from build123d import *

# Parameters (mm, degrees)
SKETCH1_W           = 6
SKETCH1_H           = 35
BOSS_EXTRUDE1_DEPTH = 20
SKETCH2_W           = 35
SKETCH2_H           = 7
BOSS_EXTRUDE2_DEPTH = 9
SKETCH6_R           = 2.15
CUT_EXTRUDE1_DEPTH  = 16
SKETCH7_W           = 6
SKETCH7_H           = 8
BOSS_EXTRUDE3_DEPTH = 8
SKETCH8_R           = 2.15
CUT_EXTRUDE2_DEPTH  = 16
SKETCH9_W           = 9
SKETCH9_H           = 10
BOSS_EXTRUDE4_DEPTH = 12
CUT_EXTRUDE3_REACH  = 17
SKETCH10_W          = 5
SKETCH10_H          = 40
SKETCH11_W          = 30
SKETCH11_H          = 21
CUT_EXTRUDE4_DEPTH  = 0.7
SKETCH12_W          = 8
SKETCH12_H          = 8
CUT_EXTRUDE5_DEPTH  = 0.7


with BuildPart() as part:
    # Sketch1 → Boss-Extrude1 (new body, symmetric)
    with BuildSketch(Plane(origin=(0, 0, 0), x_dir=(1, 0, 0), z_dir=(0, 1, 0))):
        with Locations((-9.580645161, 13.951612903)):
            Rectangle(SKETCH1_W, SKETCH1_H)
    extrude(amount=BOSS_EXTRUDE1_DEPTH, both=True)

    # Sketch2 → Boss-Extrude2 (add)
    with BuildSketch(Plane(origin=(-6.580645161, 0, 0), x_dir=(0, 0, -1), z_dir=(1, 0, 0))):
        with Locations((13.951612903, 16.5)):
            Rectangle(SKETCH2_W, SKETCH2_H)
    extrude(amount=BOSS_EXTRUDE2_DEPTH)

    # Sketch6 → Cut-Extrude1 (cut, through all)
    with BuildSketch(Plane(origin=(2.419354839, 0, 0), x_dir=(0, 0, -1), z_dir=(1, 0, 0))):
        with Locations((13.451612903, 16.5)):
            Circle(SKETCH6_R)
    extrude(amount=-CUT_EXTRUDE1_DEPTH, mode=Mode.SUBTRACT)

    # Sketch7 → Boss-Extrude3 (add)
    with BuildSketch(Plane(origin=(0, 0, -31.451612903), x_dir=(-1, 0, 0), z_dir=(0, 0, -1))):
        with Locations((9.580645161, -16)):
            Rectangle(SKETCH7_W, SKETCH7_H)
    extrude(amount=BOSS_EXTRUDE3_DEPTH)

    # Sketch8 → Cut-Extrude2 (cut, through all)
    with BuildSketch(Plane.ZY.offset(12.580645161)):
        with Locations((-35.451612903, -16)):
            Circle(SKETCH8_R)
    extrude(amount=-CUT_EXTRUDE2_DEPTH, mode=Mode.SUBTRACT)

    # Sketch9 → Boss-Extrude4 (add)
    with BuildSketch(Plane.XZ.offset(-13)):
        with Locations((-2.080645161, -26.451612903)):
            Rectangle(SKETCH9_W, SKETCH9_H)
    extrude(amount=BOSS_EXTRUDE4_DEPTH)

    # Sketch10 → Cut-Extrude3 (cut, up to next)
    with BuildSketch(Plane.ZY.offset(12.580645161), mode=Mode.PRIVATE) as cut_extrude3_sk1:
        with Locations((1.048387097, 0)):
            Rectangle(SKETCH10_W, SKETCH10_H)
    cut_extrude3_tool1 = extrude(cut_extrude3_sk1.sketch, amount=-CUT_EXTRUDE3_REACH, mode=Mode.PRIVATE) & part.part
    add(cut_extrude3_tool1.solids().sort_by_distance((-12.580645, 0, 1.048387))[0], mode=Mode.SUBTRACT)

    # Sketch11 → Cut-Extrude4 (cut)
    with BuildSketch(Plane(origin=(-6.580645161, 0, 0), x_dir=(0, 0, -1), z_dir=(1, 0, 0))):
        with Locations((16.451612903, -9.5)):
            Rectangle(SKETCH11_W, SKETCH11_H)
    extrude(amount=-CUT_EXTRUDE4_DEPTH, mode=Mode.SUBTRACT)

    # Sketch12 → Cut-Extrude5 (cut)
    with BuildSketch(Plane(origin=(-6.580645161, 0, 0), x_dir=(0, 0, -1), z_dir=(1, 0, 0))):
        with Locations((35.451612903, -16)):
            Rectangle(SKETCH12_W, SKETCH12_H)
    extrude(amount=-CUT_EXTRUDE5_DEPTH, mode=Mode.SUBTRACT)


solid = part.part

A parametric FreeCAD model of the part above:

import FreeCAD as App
import Part
import Sketcher

V = App.Vector
Q = App.Units.Quantity

doc = App.newDocument("Part")
body = doc.addObject("PartDesign::Body", "Body")

# Sketch on XZ plane
sketch1 = body.newObject("Sketcher::SketchObject", "Sketch")
sketch1.AttachmentSupport = (doc.getObject("XZ_Plane"), [""])
sketch1.MapMode = "FlatFace"
sketch1.addGeometry([
    Part.LineSegment(V(-13, -31, 0), V(-13, 4, 0)),
    Part.LineSegment(V(-13, 4, 0), V(-7, 4, 0)),
    Part.LineSegment(V(-7, 4, 0), V(-7, -31, 0)),
    Part.LineSegment(V(-7, -31, 0), V(-13, -31, 0)),
], False)
sketch1.addConstraint([
    Sketcher.Constraint("Coincident", 0, 2, 1, 1),
    Sketcher.Constraint("Coincident", 1, 2, 2, 1),
    Sketcher.Constraint("Coincident", 2, 2, 3, 1),
    Sketcher.Constraint("Coincident", 3, 2, 0, 1),
    Sketcher.Constraint("Vertical", 0),
    Sketcher.Constraint("Horizontal", 1),
    Sketcher.Constraint("Vertical", 2),
    Sketcher.Constraint("Horizontal", 3),
    Sketcher.Constraint("DistanceX", 1, 1, 1, 2, Q("6 mm")),
    Sketcher.Constraint("DistanceY", 0, 1, 0, 2, Q("35 mm")),
    Sketcher.Constraint("DistanceX", 0, 2, -1, 1, Q("12.580645 mm")),
    Sketcher.Constraint("DistanceY", -1, 1, 0, 2, Q("3.548387 mm")),
])
pad1 = body.newObject("PartDesign::Pad", "Pad")
pad1.Profile = sketch1
pad1.Length = 40
pad1.Midplane = True

# Sketch on YZ plane
sketch2 = body.newObject("Sketcher::SketchObject", "Sketch001")
sketch2.AttachmentSupport = (doc.getObject("YZ_Plane"), [""])
sketch2.MapMode = "FlatFace"
sketch2.AttachmentOffset = App.Placement(V(0, 0, -6.580645), App.Rotation())
sketch2.addGeometry([
    Part.LineSegment(V(20, 4, 0), V(13, 4, 0)),
    Part.LineSegment(V(13, 4, 0), V(13, -31, 0)),
    Part.LineSegment(V(13, -31, 0), V(20, -31, 0)),
    Part.LineSegment(V(20, -31, 0), V(20, 4, 0)),
], False)
sketch2.addConstraint([
    Sketcher.Constraint("Coincident", 0, 2, 1, 1),
    Sketcher.Constraint("Coincident", 1, 2, 2, 1),
    Sketcher.Constraint("Coincident", 2, 2, 3, 1),
    Sketcher.Constraint("Coincident", 3, 2, 0, 1),
    Sketcher.Constraint("Horizontal", 0),
    Sketcher.Constraint("Vertical", 1),
    Sketcher.Constraint("Horizontal", 2),
    Sketcher.Constraint("Vertical", 3),
    Sketcher.Constraint("DistanceX", 0, 2, 0, 1, Q("7 mm")),
    Sketcher.Constraint("DistanceY", 1, 2, 1, 1, Q("35 mm")),
    Sketcher.Constraint("DistanceX", -1, 1, 0, 2, Q("13 mm")),
    Sketcher.Constraint("DistanceY", -1, 1, 0, 2, Q("3.548387 mm")),
])
pad2 = body.newObject("PartDesign::Pad", "Pad001")
pad2.Profile = sketch2
pad2.Length = 9

# Sketch on YZ plane
sketch3 = body.newObject("Sketcher::SketchObject", "Sketch002")
sketch3.AttachmentSupport = (doc.getObject("YZ_Plane"), [""])
sketch3.MapMode = "FlatFace"
sketch3.AttachmentOffset = App.Placement(V(0, 0, 2.419355), App.Rotation())
sketch3.addGeometry(Part.Circle(V(16.5, -13.5, 0), V(0, 0, 1), 2.1), False)
sketch3.addConstraint([
    Sketcher.Constraint("Diameter", 0, Q("4.3 mm")),
    Sketcher.Constraint("DistanceX", -1, 1, 0, 3, Q("16.5 mm")),
    Sketcher.Constraint("DistanceY", 0, 3, -1, 1, Q("13.451613 mm")),
])
pocket1 = body.newObject("PartDesign::Pocket", "Pocket")
pocket1.Profile = sketch3
pocket1.Type = "ThroughAll"

# Sketch on XY plane
sketch4 = body.newObject("Sketcher::SketchObject", "Sketch003")
sketch4.AttachmentSupport = (doc.getObject("XY_Plane"), [""])
sketch4.MapMode = "FlatFace"
sketch4.AttachmentOffset = App.Placement(V(0, 0, -31.451613), App.Rotation())
sketch4.addGeometry([
    Part.LineSegment(V(-7, -12, 0), V(-7, -20, 0)),
    Part.LineSegment(V(-7, -20, 0), V(-13, -20, 0)),
    Part.LineSegment(V(-13, -20, 0), V(-13, -12, 0)),
    Part.LineSegment(V(-13, -12, 0), V(-7, -12, 0)),
], False)
sketch4.addConstraint([
    Sketcher.Constraint("Coincident", 0, 2, 1, 1),
    Sketcher.Constraint("Coincident", 1, 2, 2, 1),
    Sketcher.Constraint("Coincident", 2, 2, 3, 1),
    Sketcher.Constraint("Coincident", 3, 2, 0, 1),
    Sketcher.Constraint("Vertical", 0),
    Sketcher.Constraint("Horizontal", 1),
    Sketcher.Constraint("Vertical", 2),
    Sketcher.Constraint("Horizontal", 3),
    Sketcher.Constraint("DistanceX", 1, 2, 1, 1, Q("6 mm")),
    Sketcher.Constraint("DistanceY", 0, 2, 0, 1, Q("8 mm")),
    Sketcher.Constraint("DistanceY", 0, 2, -1, 1, Q("20 mm")),
    Sketcher.Constraint("DistanceX", 0, 2, -1, 1, Q("6.580645 mm")),
])
pad3 = body.newObject("PartDesign::Pad", "Pad002")
pad3.Profile = sketch4
pad3.Length = 8
pad3.Reversed = True

# Sketch on YZ plane
sketch5 = body.newObject("Sketcher::SketchObject", "Sketch004")
sketch5.AttachmentSupport = (doc.getObject("YZ_Plane"), [""])
sketch5.MapMode = "FlatFace"
sketch5.AttachmentOffset = App.Placement(V(0, 0, -12.580645), App.Rotation())
sketch5.addGeometry(Part.Circle(V(-16, -35.5, 0), V(0, 0, 1), 2.1), False)
sketch5.addConstraint([
    Sketcher.Constraint("Diameter", 0, Q("4.3 mm")),
    Sketcher.Constraint("DistanceX", 0, 3, -1, 1, Q("16 mm")),
    Sketcher.Constraint("DistanceY", 0, 3, -1, 1, Q("35.451613 mm")),
])
pocket2 = body.newObject("PartDesign::Pocket", "Pocket001")
pocket2.Profile = sketch5
pocket2.Type = "ThroughAll"
pocket2.Reversed = True

# Sketch on XZ plane
sketch6 = body.newObject("Sketcher::SketchObject", "Sketch005")
sketch6.AttachmentSupport = (doc.getObject("XZ_Plane"), [""])
sketch6.MapMode = "FlatFace"
sketch6.AttachmentOffset = App.Placement(V(0, 0, -13), App.Rotation())
sketch6.addGeometry([
    Part.LineSegment(V(-7, -21, 0), V(-7, -31, 0)),
    Part.LineSegment(V(-7, -31, 0), V(2, -31, 0)),
    Part.LineSegment(V(2, -31, 0), V(2, -21, 0)),
    Part.LineSegment(V(2, -21, 0), V(-7, -21, 0)),
], False)
sketch6.addConstraint([
    Sketcher.Constraint("Coincident", 0, 2, 1, 1),
    Sketcher.Constraint("Coincident", 1, 2, 2, 1),
    Sketcher.Constraint("Coincident", 2, 2, 3, 1),
    Sketcher.Constraint("Coincident", 3, 2, 0, 1),
    Sketcher.Constraint("Vertical", 0),
    Sketcher.Constraint("Horizontal", 1),
    Sketcher.Constraint("Vertical", 2),
    Sketcher.Constraint("Horizontal", 3),
    Sketcher.Constraint("DistanceX", 1, 1, 1, 2, Q("9 mm")),
    Sketcher.Constraint("DistanceY", 0, 2, 0, 1, Q("10 mm")),
    Sketcher.Constraint("DistanceX", 0, 2, -1, 1, Q("6.580645 mm")),
    Sketcher.Constraint("DistanceY", 0, 2, -1, 1, Q("31.451613 mm")),
])
pad4 = body.newObject("PartDesign::Pad", "Pad003")
pad4.Profile = sketch6
pad4.Length = 12

# Sketch on YZ plane
sketch7 = body.newObject("Sketcher::SketchObject", "Sketch006")
sketch7.AttachmentSupport = (doc.getObject("YZ_Plane"), [""])
sketch7.MapMode = "FlatFace"
sketch7.AttachmentOffset = App.Placement(V(0, 0, -12.580645), App.Rotation())
sketch7.addGeometry([
    Part.LineSegment(V(20, -1, 0), V(-20, -1, 0)),
    Part.LineSegment(V(-20, -1, 0), V(-20, 4, 0)),
    Part.LineSegment(V(-20, 4, 0), V(20, 4, 0)),
    Part.LineSegment(V(20, 4, 0), V(20, -1, 0)),
], False)
sketch7.addConstraint([
    Sketcher.Constraint("Coincident", 0, 2, 1, 1),
    Sketcher.Constraint("Coincident", 1, 2, 2, 1),
    Sketcher.Constraint("Coincident", 2, 2, 3, 1),
    Sketcher.Constraint("Coincident", 3, 2, 0, 1),
    Sketcher.Constraint("Horizontal", 0),
    Sketcher.Constraint("Vertical", 1),
    Sketcher.Constraint("Horizontal", 2),
    Sketcher.Constraint("Vertical", 3),
    Sketcher.Constraint("DistanceX", 0, 2, 0, 1, Q("40 mm")),
    Sketcher.Constraint("DistanceY", 1, 1, 1, 2, Q("5 mm")),
    Sketcher.Constraint("DistanceX", 0, 2, -1, 1, Q("20 mm")),
    Sketcher.Constraint("DistanceY", 0, 2, -1, 1, Q("1.451613 mm")),
])
pocket3 = body.newObject("PartDesign::Pocket", "Pocket002")
pocket3.Profile = sketch7
pocket3.Length = 15
pocket3.Reversed = True

# Sketch on YZ plane
sketch8 = body.newObject("Sketcher::SketchObject", "Sketch007")
sketch8.AttachmentSupport = (doc.getObject("YZ_Plane"), [""])
sketch8.MapMode = "FlatFace"
sketch8.AttachmentOffset = App.Placement(V(0, 0, -6.580645), App.Rotation())
sketch8.addGeometry([
    Part.LineSegment(V(1, -1, 0), V(-20, -1, 0)),
    Part.LineSegment(V(-20, -1, 0), V(-20, -31, 0)),
    Part.LineSegment(V(-20, -31, 0), V(1, -31, 0)),
    Part.LineSegment(V(1, -31, 0), V(1, -1, 0)),
], False)
sketch8.addConstraint([
    Sketcher.Constraint("Coincident", 0, 2, 1, 1),
    Sketcher.Constraint("Coincident", 1, 2, 2, 1),
    Sketcher.Constraint("Coincident", 2, 2, 3, 1),
    Sketcher.Constraint("Coincident", 3, 2, 0, 1),
    Sketcher.Constraint("Horizontal", 0),
    Sketcher.Constraint("Vertical", 1),
    Sketcher.Constraint("Horizontal", 2),
    Sketcher.Constraint("Vertical", 3),
    Sketcher.Constraint("DistanceX", 0, 2, 0, 1, Q("21 mm")),
    Sketcher.Constraint("DistanceY", 1, 2, 1, 1, Q("30 mm")),
    Sketcher.Constraint("DistanceX", 0, 2, -1, 1, Q("20 mm")),
    Sketcher.Constraint("DistanceY", 0, 2, -1, 1, Q("1.451613 mm")),
])
pocket4 = body.newObject("PartDesign::Pocket", "Pocket003")
pocket4.Profile = sketch8
pocket4.Length = 0.7

# Sketch on YZ plane
sketch9 = body.newObject("Sketcher::SketchObject", "Sketch008")
sketch9.AttachmentSupport = (doc.getObject("YZ_Plane"), [""])
sketch9.MapMode = "FlatFace"
sketch9.AttachmentOffset = App.Placement(V(0, 0, -6.580645), App.Rotation())
sketch9.addGeometry([
    Part.LineSegment(V(-12, -31, 0), V(-20, -31, 0)),
    Part.LineSegment(V(-20, -31, 0), V(-20, -39, 0)),
    Part.LineSegment(V(-20, -39, 0), V(-12, -39, 0)),
    Part.LineSegment(V(-12, -39, 0), V(-12, -31, 0)),
], False)
sketch9.addConstraint([
    Sketcher.Constraint("Coincident", 0, 2, 1, 1),
    Sketcher.Constraint("Coincident", 1, 2, 2, 1),
    Sketcher.Constraint("Coincident", 2, 2, 3, 1),
    Sketcher.Constraint("Coincident", 3, 2, 0, 1),
    Sketcher.Constraint("Horizontal", 0),
    Sketcher.Constraint("Vertical", 1),
    Sketcher.Constraint("Horizontal", 2),
    Sketcher.Constraint("Vertical", 3),
    Sketcher.Constraint("Equal", 2, 1),
    Sketcher.Constraint("DistanceX", 0, 2, 0, 1, Q("8 mm")),
    Sketcher.Constraint("DistanceX", 0, 2, -1, 1, Q("20 mm")),
    Sketcher.Constraint("DistanceY", 0, 2, -1, 1, Q("31.451613 mm")),
])
pocket5 = body.newObject("PartDesign::Pocket", "Pocket004")
pocket5.Profile = sketch9
pocket5.Length = 0.7

doc.recompute()
